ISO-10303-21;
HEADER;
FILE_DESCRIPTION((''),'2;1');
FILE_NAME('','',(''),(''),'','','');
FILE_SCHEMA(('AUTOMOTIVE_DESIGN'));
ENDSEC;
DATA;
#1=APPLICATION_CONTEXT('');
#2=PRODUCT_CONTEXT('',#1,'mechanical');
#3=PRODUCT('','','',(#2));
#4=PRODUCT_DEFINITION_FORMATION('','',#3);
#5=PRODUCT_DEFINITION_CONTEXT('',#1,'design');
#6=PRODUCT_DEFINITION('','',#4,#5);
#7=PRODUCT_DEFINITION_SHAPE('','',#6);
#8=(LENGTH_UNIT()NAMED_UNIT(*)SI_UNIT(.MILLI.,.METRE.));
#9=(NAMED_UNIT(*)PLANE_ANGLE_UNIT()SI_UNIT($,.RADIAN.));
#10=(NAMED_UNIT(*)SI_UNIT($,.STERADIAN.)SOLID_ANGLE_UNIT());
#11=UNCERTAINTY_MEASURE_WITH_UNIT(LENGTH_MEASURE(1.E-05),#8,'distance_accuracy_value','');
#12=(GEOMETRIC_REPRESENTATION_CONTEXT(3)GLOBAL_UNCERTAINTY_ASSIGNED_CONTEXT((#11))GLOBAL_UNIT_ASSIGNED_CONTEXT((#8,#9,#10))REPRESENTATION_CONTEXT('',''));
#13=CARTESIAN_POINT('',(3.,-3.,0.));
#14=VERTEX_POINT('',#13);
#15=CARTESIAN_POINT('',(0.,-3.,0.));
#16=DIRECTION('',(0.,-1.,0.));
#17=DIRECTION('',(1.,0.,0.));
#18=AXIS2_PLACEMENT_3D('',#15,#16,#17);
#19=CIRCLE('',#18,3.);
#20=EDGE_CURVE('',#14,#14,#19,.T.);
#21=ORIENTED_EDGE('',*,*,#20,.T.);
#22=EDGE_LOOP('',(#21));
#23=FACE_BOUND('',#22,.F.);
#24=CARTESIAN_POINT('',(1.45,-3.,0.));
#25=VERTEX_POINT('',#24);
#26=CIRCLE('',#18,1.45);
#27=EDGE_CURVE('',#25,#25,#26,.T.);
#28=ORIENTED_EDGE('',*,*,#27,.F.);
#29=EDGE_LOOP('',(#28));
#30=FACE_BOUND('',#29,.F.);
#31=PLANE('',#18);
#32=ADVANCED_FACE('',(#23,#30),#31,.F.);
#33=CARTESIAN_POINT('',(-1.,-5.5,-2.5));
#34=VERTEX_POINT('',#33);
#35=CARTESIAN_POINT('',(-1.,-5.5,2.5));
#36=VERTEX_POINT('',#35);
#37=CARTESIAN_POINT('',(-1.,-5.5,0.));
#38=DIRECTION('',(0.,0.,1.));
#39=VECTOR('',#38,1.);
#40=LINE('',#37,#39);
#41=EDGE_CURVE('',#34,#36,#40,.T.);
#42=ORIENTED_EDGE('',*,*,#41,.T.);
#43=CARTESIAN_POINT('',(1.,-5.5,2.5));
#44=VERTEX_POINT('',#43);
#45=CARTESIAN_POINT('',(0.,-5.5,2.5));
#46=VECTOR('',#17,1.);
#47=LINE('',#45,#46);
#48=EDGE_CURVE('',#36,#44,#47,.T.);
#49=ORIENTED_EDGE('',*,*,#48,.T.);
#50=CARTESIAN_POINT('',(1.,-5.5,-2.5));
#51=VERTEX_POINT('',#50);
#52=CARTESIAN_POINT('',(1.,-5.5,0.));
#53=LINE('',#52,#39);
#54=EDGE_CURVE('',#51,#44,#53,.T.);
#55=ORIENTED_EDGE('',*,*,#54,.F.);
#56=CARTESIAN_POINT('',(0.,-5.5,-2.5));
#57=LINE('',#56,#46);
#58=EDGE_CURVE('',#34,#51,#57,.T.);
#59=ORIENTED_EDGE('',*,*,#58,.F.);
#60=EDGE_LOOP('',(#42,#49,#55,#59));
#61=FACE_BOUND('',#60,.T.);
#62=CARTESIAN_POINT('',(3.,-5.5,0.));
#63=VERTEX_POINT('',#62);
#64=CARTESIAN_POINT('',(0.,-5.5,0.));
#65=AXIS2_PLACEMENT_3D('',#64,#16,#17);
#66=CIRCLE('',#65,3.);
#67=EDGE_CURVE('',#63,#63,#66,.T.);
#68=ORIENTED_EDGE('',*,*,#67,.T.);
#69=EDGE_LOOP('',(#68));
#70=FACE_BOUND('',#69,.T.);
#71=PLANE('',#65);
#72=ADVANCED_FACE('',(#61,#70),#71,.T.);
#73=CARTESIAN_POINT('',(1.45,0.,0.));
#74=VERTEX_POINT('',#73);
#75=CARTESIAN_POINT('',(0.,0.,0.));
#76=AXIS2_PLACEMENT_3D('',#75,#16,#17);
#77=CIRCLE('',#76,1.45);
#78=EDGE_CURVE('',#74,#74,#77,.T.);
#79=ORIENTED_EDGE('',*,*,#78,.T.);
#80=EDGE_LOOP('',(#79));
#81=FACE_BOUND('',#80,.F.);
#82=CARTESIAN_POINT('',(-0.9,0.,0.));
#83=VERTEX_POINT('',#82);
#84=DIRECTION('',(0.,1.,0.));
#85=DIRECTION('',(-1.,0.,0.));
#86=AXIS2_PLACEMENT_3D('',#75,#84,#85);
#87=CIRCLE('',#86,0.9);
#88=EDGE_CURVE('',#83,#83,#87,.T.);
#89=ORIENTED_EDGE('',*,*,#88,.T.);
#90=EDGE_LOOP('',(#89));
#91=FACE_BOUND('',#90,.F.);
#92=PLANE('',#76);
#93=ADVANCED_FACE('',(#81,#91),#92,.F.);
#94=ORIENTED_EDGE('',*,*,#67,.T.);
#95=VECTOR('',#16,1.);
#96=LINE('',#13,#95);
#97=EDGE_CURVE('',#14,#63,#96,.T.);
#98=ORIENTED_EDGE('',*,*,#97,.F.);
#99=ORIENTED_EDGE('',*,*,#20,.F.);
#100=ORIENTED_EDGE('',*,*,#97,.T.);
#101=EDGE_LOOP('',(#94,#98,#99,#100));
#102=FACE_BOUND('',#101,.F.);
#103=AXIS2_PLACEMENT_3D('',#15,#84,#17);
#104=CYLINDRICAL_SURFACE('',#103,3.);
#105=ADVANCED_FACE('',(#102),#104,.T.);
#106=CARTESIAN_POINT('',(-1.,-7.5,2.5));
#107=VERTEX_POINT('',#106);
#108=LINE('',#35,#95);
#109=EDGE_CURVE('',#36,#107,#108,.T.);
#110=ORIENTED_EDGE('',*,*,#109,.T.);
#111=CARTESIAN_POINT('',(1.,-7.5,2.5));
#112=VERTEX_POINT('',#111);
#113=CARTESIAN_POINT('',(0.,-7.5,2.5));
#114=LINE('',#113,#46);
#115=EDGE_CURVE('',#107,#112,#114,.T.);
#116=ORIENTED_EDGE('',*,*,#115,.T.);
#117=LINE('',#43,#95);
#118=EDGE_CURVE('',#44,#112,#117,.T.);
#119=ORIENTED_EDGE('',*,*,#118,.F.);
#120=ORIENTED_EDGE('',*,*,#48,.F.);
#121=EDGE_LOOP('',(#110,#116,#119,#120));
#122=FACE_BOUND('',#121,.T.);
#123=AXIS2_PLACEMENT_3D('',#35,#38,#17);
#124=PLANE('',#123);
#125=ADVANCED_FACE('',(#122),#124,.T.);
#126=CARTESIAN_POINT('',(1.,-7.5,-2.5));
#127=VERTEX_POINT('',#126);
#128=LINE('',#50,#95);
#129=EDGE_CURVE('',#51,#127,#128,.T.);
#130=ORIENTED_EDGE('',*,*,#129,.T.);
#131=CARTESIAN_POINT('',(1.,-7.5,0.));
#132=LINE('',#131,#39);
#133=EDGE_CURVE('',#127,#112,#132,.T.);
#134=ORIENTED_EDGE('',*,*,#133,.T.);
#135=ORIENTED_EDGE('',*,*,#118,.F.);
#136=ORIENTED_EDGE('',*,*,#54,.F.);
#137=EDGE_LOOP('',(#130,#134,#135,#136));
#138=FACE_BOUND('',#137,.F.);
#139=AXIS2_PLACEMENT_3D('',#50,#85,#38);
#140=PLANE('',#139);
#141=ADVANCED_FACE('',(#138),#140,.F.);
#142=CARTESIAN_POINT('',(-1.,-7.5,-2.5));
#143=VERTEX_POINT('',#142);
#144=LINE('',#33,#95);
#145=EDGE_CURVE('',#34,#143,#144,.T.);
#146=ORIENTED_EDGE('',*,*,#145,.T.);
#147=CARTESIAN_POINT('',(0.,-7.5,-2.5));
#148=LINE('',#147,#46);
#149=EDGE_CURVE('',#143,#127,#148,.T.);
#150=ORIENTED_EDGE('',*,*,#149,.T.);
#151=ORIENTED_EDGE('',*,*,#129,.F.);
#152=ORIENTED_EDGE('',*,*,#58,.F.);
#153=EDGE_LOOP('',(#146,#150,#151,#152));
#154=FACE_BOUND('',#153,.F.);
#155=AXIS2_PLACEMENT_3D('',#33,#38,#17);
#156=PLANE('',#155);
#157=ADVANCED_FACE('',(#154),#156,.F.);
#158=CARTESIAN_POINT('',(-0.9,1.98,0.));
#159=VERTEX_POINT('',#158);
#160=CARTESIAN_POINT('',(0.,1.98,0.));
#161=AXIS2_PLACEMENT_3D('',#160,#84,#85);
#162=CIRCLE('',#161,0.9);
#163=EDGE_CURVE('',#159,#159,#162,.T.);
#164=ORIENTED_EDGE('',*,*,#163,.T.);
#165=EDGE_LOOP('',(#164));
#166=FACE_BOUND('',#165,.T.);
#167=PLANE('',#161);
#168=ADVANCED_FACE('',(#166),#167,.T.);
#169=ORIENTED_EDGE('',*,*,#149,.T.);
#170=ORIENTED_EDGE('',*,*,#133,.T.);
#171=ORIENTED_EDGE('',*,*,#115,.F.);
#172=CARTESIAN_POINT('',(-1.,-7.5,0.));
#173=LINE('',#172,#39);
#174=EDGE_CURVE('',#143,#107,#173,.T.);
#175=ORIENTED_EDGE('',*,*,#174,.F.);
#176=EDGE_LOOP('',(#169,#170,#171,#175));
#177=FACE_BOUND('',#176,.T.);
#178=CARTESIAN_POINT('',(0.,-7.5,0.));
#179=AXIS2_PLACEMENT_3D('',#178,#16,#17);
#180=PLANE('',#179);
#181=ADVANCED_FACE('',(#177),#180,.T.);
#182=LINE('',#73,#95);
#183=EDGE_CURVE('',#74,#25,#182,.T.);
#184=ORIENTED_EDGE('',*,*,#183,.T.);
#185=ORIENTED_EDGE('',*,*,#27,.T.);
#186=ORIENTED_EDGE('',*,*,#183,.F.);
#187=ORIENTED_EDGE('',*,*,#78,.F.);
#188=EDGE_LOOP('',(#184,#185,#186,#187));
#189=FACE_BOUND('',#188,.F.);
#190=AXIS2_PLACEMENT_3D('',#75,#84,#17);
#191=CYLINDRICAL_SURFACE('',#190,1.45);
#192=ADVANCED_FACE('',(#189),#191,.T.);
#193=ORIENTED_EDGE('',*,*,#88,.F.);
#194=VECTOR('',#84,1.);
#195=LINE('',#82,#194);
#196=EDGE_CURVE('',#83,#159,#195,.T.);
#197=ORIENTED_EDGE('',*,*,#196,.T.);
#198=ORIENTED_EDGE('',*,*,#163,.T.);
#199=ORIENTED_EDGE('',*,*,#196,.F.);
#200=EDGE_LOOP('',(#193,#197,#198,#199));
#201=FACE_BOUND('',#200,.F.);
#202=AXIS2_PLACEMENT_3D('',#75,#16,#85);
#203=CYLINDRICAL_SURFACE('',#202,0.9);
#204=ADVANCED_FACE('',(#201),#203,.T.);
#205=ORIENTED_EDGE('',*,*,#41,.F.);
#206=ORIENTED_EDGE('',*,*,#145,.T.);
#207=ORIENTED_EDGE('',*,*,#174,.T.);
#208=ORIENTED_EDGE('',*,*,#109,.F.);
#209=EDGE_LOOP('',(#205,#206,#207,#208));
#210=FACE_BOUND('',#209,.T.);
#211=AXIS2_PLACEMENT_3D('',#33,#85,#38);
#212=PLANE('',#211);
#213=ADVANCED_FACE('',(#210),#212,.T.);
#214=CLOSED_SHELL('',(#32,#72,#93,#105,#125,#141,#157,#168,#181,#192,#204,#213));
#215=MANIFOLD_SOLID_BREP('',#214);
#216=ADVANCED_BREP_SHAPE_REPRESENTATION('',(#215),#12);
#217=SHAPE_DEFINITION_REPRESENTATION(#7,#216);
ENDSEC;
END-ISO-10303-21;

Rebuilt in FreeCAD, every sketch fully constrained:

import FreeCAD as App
import Part
import Sketcher
from FreeCAD import Vector


def add_polygon(sketch, points):
    """Adds a closed chain of lines whose ends are joined by coincident constraints."""
    first, n = sketch.GeometryCount, len(points)
    for a, b in zip(points, points[1:] + points[:1]):
        sketch.addGeometry(Part.LineSegment(App.Vector(*a, 0), App.Vector(*b, 0)), False)
    for i in range(n):
        sketch.addConstraint(Sketcher.Constraint("Coincident", first + i, 2, first + (i + 1) % n, 1))

doc = App.newDocument("Part")
body = doc.addObject("PartDesign::Body", "Body")

sketch1 = body.newObject("Sketcher::SketchObject", "Sketch")
sketch1.AttachmentSupport = (doc.getObject("XZ_Plane"), [""])
sketch1.MapMode = "FlatFace"
sketch1.addGeometry(Part.Circle(Vector(0, 0, 0), Vector(0, 0, 1), 1.45), False)
sketch1.addConstraint(Sketcher.Constraint("Coincident", 0, 3, -1, 1))
sketch1.addConstraint(Sketcher.Constraint("Diameter", 0, 2.9))
pad1 = body.newObject("PartDesign::Pad", "Pad")
pad1.Profile = sketch1
pad1.Length = 3

sketch2 = body.newObject("Sketcher::SketchObject", "Sketch001")
sketch2.AttachmentSupport = (doc.getObject("XZ_Plane"), [""])
sketch2.MapMode = "FlatFace"
sketch2.AttachmentOffset = App.Placement(Vector(0, 0, 3), App.Rotation())
sketch2.addGeometry(Part.Circle(Vector(0, 0, 0), Vector(0, 0, 1), 3), False)
sketch2.addConstraint(Sketcher.Constraint("Coincident", 0, 3, -1, 1))
sketch2.addConstraint(Sketcher.Constraint("Diameter", 0, 6.0))
pad2 = body.newObject("PartDesign::Pad", "Pad001")
pad2.Profile = sketch2
pad2.Length = 2.5

sketch3 = body.newObject("Sketcher::SketchObject", "Sketch002")
sketch3.AttachmentSupport = (doc.getObject("XZ_Plane"), [""])
sketch3.MapMode = "FlatFace"
sketch3.addGeometry(Part.Circle(Vector(0, 0, 0), Vector(0, 0, 1), 0.9), False)
sketch3.addConstraint(Sketcher.Constraint("Coincident", 0, 3, -1, 1))
sketch3.addConstraint(Sketcher.Constraint("Diameter", 0, 1.8))
pad3 = body.newObject("PartDesign::Pad", "Pad002")
pad3.Profile = sketch3
pad3.Length = 1.98
pad3.Reversed = True

sketch4 = body.newObject("Sketcher::SketchObject", "Sketch003")
sketch4.AttachmentSupport = (doc.getObject("XZ_Plane"), [""])
sketch4.MapMode = "FlatFace"
sketch4.AttachmentOffset = App.Placement(Vector(0, 0, 5.5), App.Rotation())
add_polygon(sketch4, [(-1, 2.5), (-1, -2.5), (1, -2.5), (1, 2.5)])
sketch4.addConstraint(Sketcher.Constraint("Vertical", 0))
sketch4.addConstraint(Sketcher.Constraint("Horizontal", 1))
sketch4.addConstraint(Sketcher.Constraint("Vertical", 2))
sketch4.addConstraint(Sketcher.Constraint("Horizontal", 3))
sketch4.addConstraint(Sketcher.Constraint("Symmetric", 0, 2, 2, 2, -1, 1))
sketch4.addConstraint(Sketcher.Constraint("DistanceX", 1, 1, 1, 2, 2.0))
sketch4.addConstraint(Sketcher.Constraint("DistanceY", 0, 2, 0, 1, 5.0))
pad4 = body.newObject("PartDesign::Pad", "Pad003")
pad4.Profile = sketch4
pad4.Length = 2

doc.recompute()
